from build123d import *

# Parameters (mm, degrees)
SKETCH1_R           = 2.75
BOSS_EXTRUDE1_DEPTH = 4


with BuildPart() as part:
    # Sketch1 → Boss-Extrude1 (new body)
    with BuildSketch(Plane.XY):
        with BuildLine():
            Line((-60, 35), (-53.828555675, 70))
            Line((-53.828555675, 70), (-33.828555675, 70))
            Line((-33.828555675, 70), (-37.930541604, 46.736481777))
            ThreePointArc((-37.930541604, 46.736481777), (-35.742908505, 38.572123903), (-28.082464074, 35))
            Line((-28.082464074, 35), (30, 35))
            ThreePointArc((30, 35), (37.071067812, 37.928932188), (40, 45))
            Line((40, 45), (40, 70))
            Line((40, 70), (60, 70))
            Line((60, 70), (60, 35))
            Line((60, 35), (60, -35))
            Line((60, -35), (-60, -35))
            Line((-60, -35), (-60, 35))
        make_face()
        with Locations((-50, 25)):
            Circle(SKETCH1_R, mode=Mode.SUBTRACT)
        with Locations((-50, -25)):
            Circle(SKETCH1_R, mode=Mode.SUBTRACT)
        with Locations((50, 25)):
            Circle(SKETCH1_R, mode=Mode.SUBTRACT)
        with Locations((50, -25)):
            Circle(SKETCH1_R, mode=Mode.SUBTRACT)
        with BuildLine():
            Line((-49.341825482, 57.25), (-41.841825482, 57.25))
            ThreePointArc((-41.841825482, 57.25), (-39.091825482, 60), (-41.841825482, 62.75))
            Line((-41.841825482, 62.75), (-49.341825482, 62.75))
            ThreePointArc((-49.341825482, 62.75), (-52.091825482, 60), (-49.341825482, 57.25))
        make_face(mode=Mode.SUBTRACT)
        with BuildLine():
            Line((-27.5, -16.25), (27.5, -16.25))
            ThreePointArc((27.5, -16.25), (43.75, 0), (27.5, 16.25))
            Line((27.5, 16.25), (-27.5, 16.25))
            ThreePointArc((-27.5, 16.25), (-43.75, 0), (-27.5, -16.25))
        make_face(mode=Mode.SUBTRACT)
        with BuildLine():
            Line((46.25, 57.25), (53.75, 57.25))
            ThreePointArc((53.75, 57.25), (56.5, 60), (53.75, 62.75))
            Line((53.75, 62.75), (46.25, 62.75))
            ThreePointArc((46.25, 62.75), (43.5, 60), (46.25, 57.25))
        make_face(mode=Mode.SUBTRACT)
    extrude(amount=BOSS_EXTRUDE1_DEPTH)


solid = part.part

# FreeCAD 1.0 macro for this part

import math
import FreeCAD as App
import Part
import Sketcher
Q = App.Units.Quantity

doc = App.newDocument("Part")
params = doc.addObject("Spreadsheet::Sheet", "Params")
for row, (alias, value) in enumerate([
    ("sketch1_radius", "10 mm"),
    ("sketch1_diameter", "5.5 mm"),
    ("sketch1_width", "120 mm"),
    ("sketch1_width2", "20 mm"),
    ("sketch1_width3", "55 mm"),
    ("pad1_length", "4 mm"),
], start=1):
    params.set(f"A{row}", alias)
    params.set(f"B{row}", "=" + value)
    params.setAlias(f"B{row}", alias)

body = doc.addObject("PartDesign::Body", "Body")

sketch1 = body.newObject("Sketcher::SketchObject", "Sketch")
sketch1.AttachmentSupport = (doc.getObject("XY_Plane"), [""])
sketch1.MapMode = "FlatFace"
sketch1.addGeometry([
    Part.LineSegment(App.Vector(-53.828556, 70, 0), App.Vector(-60, 35, 0)),
    Part.LineSegment(App.Vector(-60, 35, 0), App.Vector(-60, -35, 0)),
    Part.LineSegment(App.Vector(-60, -35, 0), App.Vector(60, -35, 0)),
    Part.LineSegment(App.Vector(60, -35, 0), App.Vector(60, 70, 0)),
    Part.LineSegment(App.Vector(60, 70, 0), App.Vector(40, 70, 0)),
    Part.LineSegment(App.Vector(40, 70, 0), App.Vector(40, 45, 0)),
    Part.ArcOfCircle(Part.Circle(App.Vector(30, 45, 0), App.Vector(0, 0, 1), 10), math.radians(-90), math.radians(0)),
    Part.LineSegment(App.Vector(30, 35, 0), App.Vector(-28.082464, 35, 0)),
    Part.ArcOfCircle(Part.Circle(App.Vector(-28.082464, 45, 0), App.Vector(0, 0, 1), 10), math.radians(170), math.radians(270)),
    Part.LineSegment(App.Vector(-37.930542, 46.736482, 0), App.Vector(-33.828556, 70, 0)),
    Part.LineSegment(App.Vector(-33.828556, 70, 0), App.Vector(-53.828556, 70, 0)),
    Part.Circle(App.Vector(50, -25, 0), App.Vector(0, 0, 1), 2.75),
    Part.Circle(App.Vector(-50, -25, 0), App.Vector(0, 0, 1), 2.75),
    Part.ArcOfCircle(Part.Circle(App.Vector(-27.5, 0, 0), App.Vector(0, 0, 1), 16.25), math.radians(90), math.radians(270)),
    Part.LineSegment(App.Vector(-27.5, 16.25, 0), App.Vector(27.5, 16.25, 0)),
    Part.ArcOfCircle(Part.Circle(App.Vector(27.5, 0, 0), App.Vector(0, 0, 1), 16.25), math.radians(-90), math.radians(90)),
    Part.LineSegment(App.Vector(27.5, -16.25, 0), App.Vector(-27.5, -16.25, 0)),
    Part.Circle(App.Vector(50, 25, 0), App.Vector(0, 0, 1), 2.75),
    Part.ArcOfCircle(Part.Circle(App.Vector(46.25, 60, 0), App.Vector(0, 0, 1), 2.75), math.radians(90), math.radians(270)),
    Part.LineSegment(App.Vector(46.25, 62.75, 0), App.Vector(53.75, 62.75, 0)),
    Part.ArcOfCircle(Part.Circle(App.Vector(53.75, 60, 0), App.Vector(0, 0, 1), 2.75), math.radians(-90), math.radians(90)),
    Part.LineSegment(App.Vector(53.75, 57.25, 0), App.Vector(46.25, 57.25, 0)),
    Part.Circle(App.Vector(-50, 25, 0), App.Vector(0, 0, 1), 2.75),
    Part.ArcOfCircle(Part.Circle(App.Vector(-49.341825, 60, 0), App.Vector(0, 0, 1), 2.75), math.radians(90), math.radians(270)),
    Part.LineSegment(App.Vector(-49.341825, 62.75, 0), App.Vector(-41.841825, 62.75, 0)),
    Part.ArcOfCircle(Part.Circle(App.Vector(-41.841825, 60, 0), App.Vector(0, 0, 1), 2.75), math.radians(-90), math.radians(90)),
    Part.LineSegment(App.Vector(-41.841825, 57.25, 0), App.Vector(-49.341825, 57.25, 0)),
], False)
sketch1.addConstraint([
    Sketcher.Constraint("Coincident", 0, 2, 1, 1),
    Sketcher.Constraint("Coincident", 1, 2, 2, 1),
    Sketcher.Constraint("Coincident", 2, 2, 3, 1),
    Sketcher.Constraint("Coincident", 3, 2, 4, 1),
    Sketcher.Constraint("Coincident", 4, 2, 5, 1),
    Sketcher.Constraint("Tangent", 5, 2, 6, 2),
    Sketcher.Constraint("Tangent", 6, 1, 7, 1),
    Sketcher.Constraint("Tangent", 7, 2, 8, 2),
    Sketcher.Constraint("Tangent", 8, 1, 9, 1),
    Sketcher.Constraint("Coincident", 9, 2, 10, 1),
    Sketcher.Constraint("Coincident", 10, 2, 0, 1),
    Sketcher.Constraint("Tangent", 13, 1, 14, 1),
    Sketcher.Constraint("Tangent", 14, 2, 15, 2),
    Sketcher.Constraint("Tangent", 15, 1, 16, 1),
    Sketcher.Constraint("Tangent", 16, 2, 13, 2),
    Sketcher.Constraint("Tangent", 18, 1, 19, 1),
    Sketcher.Constraint("Tangent", 19, 2, 20, 2),
    Sketcher.Constraint("Tangent", 20, 1, 21, 1),
    Sketcher.Constraint("Tangent", 21, 2, 18, 2),
    Sketcher.Constraint("Tangent", 23, 1, 24, 1),
    Sketcher.Constraint("Tangent", 24, 2, 25, 2),
    Sketcher.Constraint("Tangent", 25, 1, 26, 1),
    Sketcher.Constraint("Tangent", 26, 2, 23, 2),
    Sketcher.Constraint("Vertical", 1),
    Sketcher.Constraint("Horizontal", 2),
    Sketcher.Constraint("Vertical", 3),
    Sketcher.Constraint("Horizontal", 4),
    Sketcher.Constraint("Vertical", 5),
    Sketcher.Constraint("Horizontal", 7),
    Sketcher.Constraint("Horizontal", 10),
    Sketcher.Constraint("Horizontal", 14),
    Sketcher.Constraint("Horizontal", 16),
    Sketcher.Constraint("Horizontal", 19),
    Sketcher.Constraint("Horizontal", 21),
    Sketcher.Constraint("Horizontal", 24),
    Sketcher.Constraint("Horizontal", 26),
    Sketcher.Constraint("Equal", 6, 8),
    Sketcher.Constraint("Equal", 11, 12),
    Sketcher.Constraint("Equal", 12, 17),
    Sketcher.Constraint("Equal", 17, 18),
    Sketcher.Constraint("Equal", 20, 22),
    Sketcher.Constraint("Equal", 22, 23),
    Sketcher.Constraint("Symmetric", 13, 3, 15, 3, -1, 1),
    Sketcher.Constraint("Symmetric", 12, 3, 17, 3, -1, 1),
    Sketcher.Constraint("Symmetric", 11, 3, 22, 3, -1, 1),
    Sketcher.Constraint("Symmetric", 0, 2, 2, 2, -1, 1),
    Sketcher.Constraint("Symmetric", 11, 3, 12, 3, -2),
    Sketcher.Constraint("Parallel", 0, 9),
    Sketcher.Constraint("Horizontal", 20, 3, 23, 3),
    Sketcher.Constraint("Horizontal", 0, 2, 6, 1),
    Sketcher.Constraint("Horizontal", 4, 2, 9, 2),
    Sketcher.Constraint("Equal", 4, 10),
    Sketcher.Constraint("Equal", 21, 24),
    Sketcher.Constraint("Radius", 6, Q("10 mm")),
    Sketcher.Constraint("Diameter", 11, Q("5.5 mm")),
    Sketcher.Constraint("DistanceX", 2, 1, 2, 2, Q("120 mm")),
    Sketcher.Constraint("DistanceX", 4, 2, 4, 1, Q("20 mm")),
    Sketcher.Constraint("DistanceX", 14, 1, 14, 2, Q("55 mm")),
    Sketcher.Constraint("DistanceY", 1, 2, 1, 1, Q("70 mm")),
    Sketcher.Constraint("DistanceY", 3, 1, 3, 2, Q("105 mm")),
    Sketcher.Constraint("Angle", 0, Q("-100 deg")),
    Sketcher.Constraint("Radius", 13, Q("16.25 mm")),
    Sketcher.Constraint("DistanceX", 19, 1, 19, 2, Q("7.5 mm")),
    Sketcher.Constraint("DistanceX", -1, 1, 11, 3, Q("50 mm")),
    Sketcher.Constraint("DistanceY", 11, 3, -1, 1, Q("25 mm")),
    Sketcher.Constraint("DistanceY", -1, 1, 18, 3, Q("60 mm")),
    Sketcher.Constraint("DistanceX", -1, 1, 18, 3, Q("46.25 mm")),
    Sketcher.Constraint("DistanceX", 23, 3, 8, 3, Q("21.259361 mm")),
])
sketch1.setExpression("Constraints[53]", "Params.sketch1_radius")
sketch1.setExpression("Constraints[54]", "Params.sketch1_diameter")
sketch1.setExpression("Constraints[55]", "Params.sketch1_width")
sketch1.setExpression("Constraints[56]", "Params.sketch1_width2")
sketch1.setExpression("Constraints[57]", "Params.sketch1_width3")
pad1 = body.newObject("PartDesign::Pad", "Pad")
pad1.Profile = sketch1
pad1.setExpression("Length", "Params.pad1_length")

doc.recompute()
